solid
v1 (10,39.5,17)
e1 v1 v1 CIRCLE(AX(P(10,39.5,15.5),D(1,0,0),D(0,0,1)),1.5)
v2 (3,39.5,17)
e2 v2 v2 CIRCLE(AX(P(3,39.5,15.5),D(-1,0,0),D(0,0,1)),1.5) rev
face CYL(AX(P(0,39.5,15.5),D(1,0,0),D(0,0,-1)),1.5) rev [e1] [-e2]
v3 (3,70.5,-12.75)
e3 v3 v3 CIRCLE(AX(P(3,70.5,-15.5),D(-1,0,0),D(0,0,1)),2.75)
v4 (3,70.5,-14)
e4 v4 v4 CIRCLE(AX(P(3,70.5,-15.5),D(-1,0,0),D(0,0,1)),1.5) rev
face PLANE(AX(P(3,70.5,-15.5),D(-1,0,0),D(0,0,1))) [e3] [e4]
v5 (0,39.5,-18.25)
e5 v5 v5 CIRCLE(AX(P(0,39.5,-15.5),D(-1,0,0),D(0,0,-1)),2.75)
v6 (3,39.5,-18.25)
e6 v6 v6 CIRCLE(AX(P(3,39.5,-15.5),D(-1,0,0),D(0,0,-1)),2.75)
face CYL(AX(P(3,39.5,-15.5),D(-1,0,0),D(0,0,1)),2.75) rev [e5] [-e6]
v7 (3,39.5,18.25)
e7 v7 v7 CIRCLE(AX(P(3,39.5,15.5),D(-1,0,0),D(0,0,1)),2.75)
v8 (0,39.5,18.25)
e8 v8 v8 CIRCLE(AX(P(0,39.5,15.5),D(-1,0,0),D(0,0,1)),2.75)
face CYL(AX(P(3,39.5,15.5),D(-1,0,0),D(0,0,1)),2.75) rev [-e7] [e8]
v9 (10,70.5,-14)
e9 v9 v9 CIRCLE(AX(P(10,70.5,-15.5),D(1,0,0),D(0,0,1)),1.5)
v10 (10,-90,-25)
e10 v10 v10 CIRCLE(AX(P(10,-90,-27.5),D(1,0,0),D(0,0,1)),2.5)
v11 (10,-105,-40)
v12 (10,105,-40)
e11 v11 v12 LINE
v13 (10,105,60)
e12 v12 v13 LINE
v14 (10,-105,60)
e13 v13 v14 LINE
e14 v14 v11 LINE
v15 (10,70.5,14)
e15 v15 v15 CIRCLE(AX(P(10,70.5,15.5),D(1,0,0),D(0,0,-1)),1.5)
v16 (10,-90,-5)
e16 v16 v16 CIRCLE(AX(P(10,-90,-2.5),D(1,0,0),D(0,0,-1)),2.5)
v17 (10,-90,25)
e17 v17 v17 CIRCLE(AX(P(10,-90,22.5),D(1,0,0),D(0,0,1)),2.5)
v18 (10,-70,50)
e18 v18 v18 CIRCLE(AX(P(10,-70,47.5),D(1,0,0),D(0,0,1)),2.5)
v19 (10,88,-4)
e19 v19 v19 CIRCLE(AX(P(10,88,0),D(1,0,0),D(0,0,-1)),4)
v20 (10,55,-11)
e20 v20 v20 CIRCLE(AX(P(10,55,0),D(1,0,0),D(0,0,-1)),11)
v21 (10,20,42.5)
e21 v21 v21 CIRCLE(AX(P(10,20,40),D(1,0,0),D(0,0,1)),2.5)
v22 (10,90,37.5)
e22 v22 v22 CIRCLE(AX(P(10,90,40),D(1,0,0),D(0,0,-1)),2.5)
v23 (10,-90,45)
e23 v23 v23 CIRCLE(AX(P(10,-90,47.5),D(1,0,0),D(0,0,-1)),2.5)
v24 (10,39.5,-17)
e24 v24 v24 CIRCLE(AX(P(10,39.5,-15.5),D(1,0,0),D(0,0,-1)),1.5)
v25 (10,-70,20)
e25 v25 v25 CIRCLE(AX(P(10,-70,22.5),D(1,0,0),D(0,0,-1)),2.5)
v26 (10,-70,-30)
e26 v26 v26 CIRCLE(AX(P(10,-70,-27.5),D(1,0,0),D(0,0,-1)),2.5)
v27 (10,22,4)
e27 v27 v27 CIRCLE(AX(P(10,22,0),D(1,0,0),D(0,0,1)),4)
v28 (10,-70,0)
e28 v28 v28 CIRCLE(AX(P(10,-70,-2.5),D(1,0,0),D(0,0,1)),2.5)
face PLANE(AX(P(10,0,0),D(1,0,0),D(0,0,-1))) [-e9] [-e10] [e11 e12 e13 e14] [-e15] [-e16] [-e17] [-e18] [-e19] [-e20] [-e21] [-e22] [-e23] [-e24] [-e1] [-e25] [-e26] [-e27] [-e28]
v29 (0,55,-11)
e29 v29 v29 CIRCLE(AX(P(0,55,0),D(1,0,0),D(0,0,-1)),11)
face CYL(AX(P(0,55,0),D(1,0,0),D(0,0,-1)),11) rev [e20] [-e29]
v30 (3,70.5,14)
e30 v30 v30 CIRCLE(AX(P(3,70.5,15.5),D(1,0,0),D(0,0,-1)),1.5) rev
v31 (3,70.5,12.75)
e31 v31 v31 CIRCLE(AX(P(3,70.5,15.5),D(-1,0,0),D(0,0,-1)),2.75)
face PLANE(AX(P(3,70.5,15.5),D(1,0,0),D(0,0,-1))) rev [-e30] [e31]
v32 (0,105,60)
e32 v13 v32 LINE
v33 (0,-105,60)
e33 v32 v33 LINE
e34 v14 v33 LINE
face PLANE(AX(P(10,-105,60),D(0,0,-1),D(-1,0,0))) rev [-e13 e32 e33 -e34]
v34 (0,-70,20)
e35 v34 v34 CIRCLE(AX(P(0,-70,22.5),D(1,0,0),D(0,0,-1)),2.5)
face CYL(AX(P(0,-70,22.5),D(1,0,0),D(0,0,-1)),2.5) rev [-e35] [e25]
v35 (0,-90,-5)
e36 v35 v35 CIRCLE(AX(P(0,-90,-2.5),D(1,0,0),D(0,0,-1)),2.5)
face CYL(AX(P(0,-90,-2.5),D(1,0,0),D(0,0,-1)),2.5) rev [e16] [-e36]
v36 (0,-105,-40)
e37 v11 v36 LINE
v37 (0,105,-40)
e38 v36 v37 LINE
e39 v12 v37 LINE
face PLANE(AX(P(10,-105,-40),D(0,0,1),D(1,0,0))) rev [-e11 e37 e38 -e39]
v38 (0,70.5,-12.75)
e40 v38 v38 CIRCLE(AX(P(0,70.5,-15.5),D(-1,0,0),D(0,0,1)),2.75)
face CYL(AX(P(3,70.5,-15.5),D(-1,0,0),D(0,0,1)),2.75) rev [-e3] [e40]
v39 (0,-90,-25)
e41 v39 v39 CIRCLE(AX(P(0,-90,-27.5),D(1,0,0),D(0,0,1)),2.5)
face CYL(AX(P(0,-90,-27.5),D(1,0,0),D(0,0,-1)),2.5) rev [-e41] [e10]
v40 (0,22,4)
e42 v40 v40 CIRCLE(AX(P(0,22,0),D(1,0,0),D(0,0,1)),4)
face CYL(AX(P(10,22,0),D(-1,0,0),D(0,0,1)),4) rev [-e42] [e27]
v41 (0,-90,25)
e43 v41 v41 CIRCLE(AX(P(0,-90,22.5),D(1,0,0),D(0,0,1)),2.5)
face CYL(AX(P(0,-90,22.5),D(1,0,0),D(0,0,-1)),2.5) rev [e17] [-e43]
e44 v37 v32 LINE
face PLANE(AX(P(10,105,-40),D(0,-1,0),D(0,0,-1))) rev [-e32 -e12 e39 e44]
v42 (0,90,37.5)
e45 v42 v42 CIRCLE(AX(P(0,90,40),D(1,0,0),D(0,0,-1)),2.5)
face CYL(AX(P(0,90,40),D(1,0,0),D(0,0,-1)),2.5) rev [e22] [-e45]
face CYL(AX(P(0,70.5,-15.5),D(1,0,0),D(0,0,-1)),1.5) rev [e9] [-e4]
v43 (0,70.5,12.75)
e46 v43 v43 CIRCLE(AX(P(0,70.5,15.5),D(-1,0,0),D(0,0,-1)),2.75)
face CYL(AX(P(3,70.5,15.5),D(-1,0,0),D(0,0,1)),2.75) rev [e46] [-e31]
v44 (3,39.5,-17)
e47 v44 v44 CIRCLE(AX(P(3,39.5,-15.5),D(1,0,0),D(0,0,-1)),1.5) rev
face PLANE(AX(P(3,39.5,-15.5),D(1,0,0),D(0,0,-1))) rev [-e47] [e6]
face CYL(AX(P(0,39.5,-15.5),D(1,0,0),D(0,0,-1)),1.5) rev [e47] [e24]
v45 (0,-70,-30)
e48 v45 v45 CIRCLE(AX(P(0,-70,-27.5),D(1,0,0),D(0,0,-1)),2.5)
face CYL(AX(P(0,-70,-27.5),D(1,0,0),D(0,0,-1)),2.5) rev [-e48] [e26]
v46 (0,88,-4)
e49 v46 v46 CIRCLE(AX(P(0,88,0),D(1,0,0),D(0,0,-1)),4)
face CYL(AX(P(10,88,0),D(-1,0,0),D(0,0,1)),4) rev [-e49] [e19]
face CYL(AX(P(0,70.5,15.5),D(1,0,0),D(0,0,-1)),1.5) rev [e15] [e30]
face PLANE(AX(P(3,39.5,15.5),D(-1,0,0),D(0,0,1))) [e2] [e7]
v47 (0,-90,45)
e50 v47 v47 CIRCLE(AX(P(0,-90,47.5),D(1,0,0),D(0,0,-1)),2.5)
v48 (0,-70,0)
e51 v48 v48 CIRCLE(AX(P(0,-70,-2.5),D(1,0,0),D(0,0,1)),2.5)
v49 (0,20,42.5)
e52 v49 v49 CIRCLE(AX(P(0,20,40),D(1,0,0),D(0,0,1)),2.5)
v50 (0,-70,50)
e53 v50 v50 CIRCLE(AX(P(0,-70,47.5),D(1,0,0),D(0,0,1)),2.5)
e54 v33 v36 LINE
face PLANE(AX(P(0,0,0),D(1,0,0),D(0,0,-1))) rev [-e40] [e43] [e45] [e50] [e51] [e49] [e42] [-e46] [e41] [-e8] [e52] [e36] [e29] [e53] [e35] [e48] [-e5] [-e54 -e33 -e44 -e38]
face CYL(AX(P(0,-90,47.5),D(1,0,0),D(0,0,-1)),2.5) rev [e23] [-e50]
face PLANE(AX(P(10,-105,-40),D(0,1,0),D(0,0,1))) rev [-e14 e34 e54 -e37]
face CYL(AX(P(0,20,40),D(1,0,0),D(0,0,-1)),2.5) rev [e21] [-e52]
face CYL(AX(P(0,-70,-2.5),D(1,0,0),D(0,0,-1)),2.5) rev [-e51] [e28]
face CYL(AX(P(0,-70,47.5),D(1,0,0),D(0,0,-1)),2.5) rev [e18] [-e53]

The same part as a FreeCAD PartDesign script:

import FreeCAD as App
import Part
import Sketcher

V = App.Vector

doc = App.newDocument("Part")
body = doc.addObject("PartDesign::Body", "Body")

sketch1 = body.newObject("Sketcher::SketchObject", "Sketch")
sketch1.AttachmentSupport = (doc.getObject("YZ_Plane"), [""])
sketch1.MapMode = "FlatFace"
sketch1.addGeometry(Part.LineSegment(V(105, 60, 0), V(-105, 60, 0)), False)
sketch1.addGeometry(Part.LineSegment(V(-105, 60, 0), V(-105, -40, 0)), False)
sketch1.addGeometry(Part.LineSegment(V(-105, -40, 0), V(105, -40, 0)), False)
sketch1.addGeometry(Part.LineSegment(V(105, -40, 0), V(105, 60, 0)), False)
sketch1.addGeometry(Part.Circle(V(22, 0, 0), V(0, 0, 1), 4), False)
sketch1.addGeometry(Part.Circle(V(88, 0, 0), V(0, 0, 1), 4), False)
sketch1.addConstraint(Sketcher.Constraint("Coincident", 0, 2, 1, 1))
sketch1.addConstraint(Sketcher.Constraint("Coincident", 1, 2, 2, 1))
sketch1.addConstraint(Sketcher.Constraint("Coincident", 2, 2, 3, 1))
sketch1.addConstraint(Sketcher.Constraint("Coincident", 3, 2, 0, 1))
sketch1.addConstraint(Sketcher.Constraint("Horizontal", 0))
sketch1.addConstraint(Sketcher.Constraint("Vertical", 1))
sketch1.addConstraint(Sketcher.Constraint("Horizontal", 2))
sketch1.addConstraint(Sketcher.Constraint("Vertical", 3))
sketch1.addConstraint(Sketcher.Constraint("Equal", 4, 5))
sketch1.addConstraint(Sketcher.Constraint("PointOnObject", 4, 3, -1))
sketch1.addConstraint(Sketcher.Constraint("PointOnObject", 5, 3, -1))
sketch1.addConstraint(Sketcher.Constraint("Diameter", 4, 8.0))
sketch1.addConstraint(Sketcher.Constraint("DistanceX", 0, 2, 0, 1, 210.0))
sketch1.addConstraint(Sketcher.Constraint("DistanceY", 1, 2, 1, 1, 100.0))
sketch1.addConstraint(Sketcher.Constraint("DistanceX", -1, 1, 4, 3, 22.0))
sketch1.addConstraint(Sketcher.Constraint("DistanceX", -1, 1, 5, 3, 88.0))
sketch1.addConstraint(Sketcher.Constraint("DistanceX", 0, 2, -1, 1, 105.0))
sketch1.addConstraint(Sketcher.Constraint("DistanceY", -1, 1, 0, 2, 60.0))
pad1 = body.newObject("PartDesign::Pad", "Pad")
pad1.Profile = sketch1
pad1.Length = 10

sketch2 = body.newObject("Sketcher::SketchObject", "Sketch001")
sketch2.AttachmentSupport = (doc.getObject("YZ_Plane"), [""])
sketch2.MapMode = "FlatFace"
sketch2.AttachmentOffset = App.Placement(V(0, 0, 10), App.Rotation())
sketch2.addGeometry(Part.Circle(V(-70, 22.5, 0), V(0, 0, 1), 2.5), False)
sketch2.addGeometry(Part.Circle(V(-70, 47.5, 0), V(0, 0, 1), 2.5), False)
sketch2.addGeometry(Part.Circle(V(-90, 47.5, 0), V(0, 0, 1), 2.5), False)
sketch2.addGeometry(Part.Circle(V(-90, 22.5, 0), V(0, 0, 1), 2.5), False)
sketch2.addGeometry(Part.Circle(V(-90, -2.5, 0), V(0, 0, 1), 2.5), False)
sketch2.addGeometry(Part.Circle(V(-90, -27.5, 0), V(0, 0, 1), 2.5), False)
sketch2.addGeometry(Part.Circle(V(-70, -27.5, 0), V(0, 0, 1), 2.5), False)
sketch2.addGeometry(Part.Circle(V(-70, -2.5, 0), V(0, 0, 1), 2.5), False)
sketch2.addConstraint(Sketcher.Constraint("Equal", 0, 1))
sketch2.addConstraint(Sketcher.Constraint("Equal", 1, 2))
sketch2.addConstraint(Sketcher.Constraint("Equal", 2, 3))
sketch2.addConstraint(Sketcher.Constraint("Equal", 3, 4))
sketch2.addConstraint(Sketcher.Constraint("Equal", 4, 5))
sketch2.addConstraint(Sketcher.Constraint("Equal", 5, 6))
sketch2.addConstraint(Sketcher.Constraint("Equal", 6, 7))
sketch2.addConstraint(Sketcher.Constraint("Horizontal", 1, 3, 2, 3))
sketch2.addConstraint(Sketcher.Constraint("Horizontal", 0, 3, 3, 3))
sketch2.addConstraint(Sketcher.Constraint("Horizontal", 5, 3, 6, 3))
sketch2.addConstraint(Sketcher.Constraint("Horizontal", 4, 3, 7, 3))
sketch2.addConstraint(Sketcher.Constraint("Vertical", 0, 3, 1, 3))
sketch2.addConstraint(Sketcher.Constraint("Vertical", 2, 3, 3, 3))
sketch2.addConstraint(Sketcher.Constraint("Vertical", 3, 3, 4, 3))
sketch2.addConstraint(Sketcher.Constraint("Vertical", 4, 3, 5, 3))
sketch2.addConstraint(Sketcher.Constraint("Vertical", 1, 3, 6, 3))
sketch2.addConstraint(Sketcher.Constraint("Vertical", 6, 3, 7, 3))
sketch2.addConstraint(Sketcher.Constraint("Diameter", 0, 5.0))
sketch2.addConstraint(Sketcher.Constraint("DistanceX", 0, 3, -1, 1, 70.0))
sketch2.addConstraint(Sketcher.Constraint("DistanceX", 2, 3, -1, 1, 90.0))
sketch2.addConstraint(Sketcher.Constraint("DistanceY", 0, 3, 1, 3, 25.0))
sketch2.addConstraint(Sketcher.Constraint("DistanceY", 4, 3, 3, 3, 25.0))
sketch2.addConstraint(Sketcher.Constraint("DistanceY", 5, 3, 4, 3, 25.0))
sketch2.addConstraint(Sketcher.Constraint("DistanceY", -1, 1, 0, 3, 22.5))
pocket1 = body.newObject("PartDesign::Pocket", "Pocket")
pocket1.Profile = sketch2
pocket1.Type = "ThroughAll"

sketch3 = body.newObject("Sketcher::SketchObject", "Sketch002")
sketch3.AttachmentSupport = (doc.getObject("YZ_Plane"), [""])
sketch3.MapMode = "FlatFace"
sketch3.AttachmentOffset = App.Placement(V(0, 0, 10), App.Rotation())
sketch3.addGeometry(Part.Circle(V(90, 40, 0), V(0, 0, 1), 2.5), False)
sketch3.addGeometry(Part.Circle(V(20, 40, 0), V(0, 0, 1), 2.5), False)
sketch3.addConstraint(Sketcher.Constraint("Equal", 0, 1))
sketch3.addConstraint(Sketcher.Constraint("Horizontal", 0, 3, 1, 3))
sketch3.addConstraint(Sketcher.Constraint("Diameter", 0, 5.0))
sketch3.addConstraint(Sketcher.Constraint("DistanceX", -1, 1, 0, 3, 90.0))
sketch3.addConstraint(Sketcher.Constraint("DistanceY", -1, 1, 0, 3, 40.0))
sketch3.addConstraint(Sketcher.Constraint("DistanceX", -1, 1, 1, 3, 20.0))
pocket2 = body.newObject("PartDesign::Pocket", "Pocket001")
pocket2.Profile = sketch3
pocket2.Type = "ThroughAll"

sketch4 = body.newObject("Sketcher::SketchObject", "Sketch003")
sketch4.AttachmentSupport = (doc.getObject("YZ_Plane"), [""])
sketch4.MapMode = "FlatFace"
sketch4.AttachmentOffset = App.Placement(V(0, 0, 10), App.Rotation())
sketch4.addGeometry(Part.Circle(V(55, 0, 0), V(0, 0, 1), 11), False)
sketch4.addGeometry(Part.Circle(V(70.5, 15.5, 0), V(0, 0, 1), 1.5), False)
sketch4.addGeometry(Part.Circle(V(70.5, -15.5, 0), V(0, 0, 1), 1.5), False)
sketch4.addGeometry(Part.Circle(V(39.5, 15.5, 0), V(0, 0, 1), 1.5), False)
sketch4.addGeometry(Part.Circle(V(39.5, -15.5, 0), V(0, 0, 1), 1.5), False)
sketch4.addConstraint(Sketcher.Constraint("Equal", 1, 2))
sketch4.addConstraint(Sketcher.Constraint("Equal", 2, 3))
sketch4.addConstraint(Sketcher.Constraint("Equal", 3, 4))
sketch4.addConstraint(Sketcher.Constraint("Symmetric", 1, 3, 2, 3, -1))
sketch4.addConstraint(Sketcher.Constraint("Symmetric", 3, 3, 4, 3, -1))
sketch4.addConstraint(Sketcher.Constraint("PointOnObject", 0, 3, -1))
sketch4.addConstraint(Sketcher.Constraint("Horizontal", 1, 3, 3, 3))
sketch4.addConstraint(Sketcher.Constraint("Diameter", 0, 22.0))
sketch4.addConstraint(Sketcher.Constraint("Diameter", 1, 3.0))
sketch4.addConstraint(Sketcher.Constraint("DistanceX", -1, 1, 0, 3, 55.0))
sketch4.addConstraint(Sketcher.Constraint("DistanceY", 2, 3, 1, 3, 31.0))
sketch4.addConstraint(Sketcher.Constraint("DistanceX", 3, 3, 1, 3, 31.0))
sketch4.addConstraint(Sketcher.Constraint("DistanceX", -1, 1, 1, 3, 70.5))
pocket3 = body.newObject("PartDesign::Pocket", "Pocket002")
pocket3.Profile = sketch4
pocket3.Type = "ThroughAll"

sketch5 = body.newObject("Sketcher::SketchObject", "Sketch004")
sketch5.AttachmentSupport = (doc.getObject("YZ_Plane"), [""])
sketch5.MapMode = "FlatFace"
sketch5.addGeometry(Part.Circle(V(70.5, -15.5, 0), V(0, 0, 1), 2.8), False)
sketch5.addGeometry(Part.Circle(V(70.5, 15.5, 0), V(0, 0, 1), 2.8), False)
sketch5.addGeometry(Part.Circle(V(39.5, 15.5, 0), V(0, 0, 1), 2.8), False)
sketch5.addGeometry(Part.Circle(V(39.5, -15.5, 0), V(0, 0, 1), 2.8), False)
sketch5.addConstraint(Sketcher.Constraint("Equal", 0, 1))
sketch5.addConstraint(Sketcher.Constraint("Equal", 1, 2))
sketch5.addConstraint(Sketcher.Constraint("Equal", 2, 3))
sketch5.addConstraint(Sketcher.Constraint("Symmetric", 0, 3, 1, 3, -1))
sketch5.addConstraint(Sketcher.Constraint("Symmetric", 2, 3, 3, 3, -1))
sketch5.addConstraint(Sketcher.Constraint("Horizontal", 1, 3, 2, 3))
sketch5.addConstraint(Sketcher.Constraint("Diameter", 0, 5.5))
sketch5.addConstraint(Sketcher.Constraint("DistanceY", 0, 3, 1, 3, 31.0))
sketch5.addConstraint(Sketcher.Constraint("DistanceX", 2, 3, 1, 3, 31.0))
sketch5.addConstraint(Sketcher.Constraint("DistanceX", -1, 1, 0, 3, 70.5))
pocket4 = body.newObject("PartDesign::Pocket", "Pocket003")
pocket4.Profile = sketch5
pocket4.Length = 3
pocket4.Reversed = True

doc.recompute()
